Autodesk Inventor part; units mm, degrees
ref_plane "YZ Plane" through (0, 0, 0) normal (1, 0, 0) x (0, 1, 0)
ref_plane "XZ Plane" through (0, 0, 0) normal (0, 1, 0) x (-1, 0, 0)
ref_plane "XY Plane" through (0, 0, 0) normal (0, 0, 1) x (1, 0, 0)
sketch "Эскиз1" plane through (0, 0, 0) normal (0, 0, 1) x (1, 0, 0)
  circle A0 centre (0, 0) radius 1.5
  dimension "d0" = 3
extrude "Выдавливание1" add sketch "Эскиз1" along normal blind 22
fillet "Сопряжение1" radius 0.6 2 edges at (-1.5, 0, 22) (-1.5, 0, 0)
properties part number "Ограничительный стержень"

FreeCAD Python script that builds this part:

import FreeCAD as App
import Part
import Sketcher
from FreeCAD import Vector
Q = App.Units.Quantity


def edges_at(feature, points):
    """Names of the edges that pass closest to the given points."""
    edges = feature.Shape.Edges
    near = lambda p: min(range(len(edges)), key=lambda i: edges[i].distToShape(Part.Vertex(*p))[0])
    return sorted({f"Edge{near(p) + 1}" for p in points})

doc = App.newDocument("Part")
body = doc.addObject("PartDesign::Body", "Body")

# Sketch on XY plane
sketch1 = body.newObject("Sketcher::SketchObject", "Sketch")
sketch1.AttachmentSupport = (doc.getObject("XY_Plane"), [""])
sketch1.MapMode = "FlatFace"
sketch1.addGeometry(Part.Circle(Vector(0, 0, 0), Vector(0, 0, 1), 1.5), False)
sketch1.addConstraint(Sketcher.Constraint("Coincident", 0, 3, -1, 1))
sketch1.addConstraint(Sketcher.Constraint("Diameter", 0, Q("3 mm")))
pad1 = body.newObject("PartDesign::Pad", "Pad")
pad1.Profile = sketch1
pad1.Length = 22
doc.recompute()

fillet = body.newObject("PartDesign::Fillet", "Fillet")
fillet.Base = (pad1, edges_at(pad1, [(-1.5, 0, 22), (-1.5, 0, 0)]))
fillet.Radius = 0.6

doc.recompute()
